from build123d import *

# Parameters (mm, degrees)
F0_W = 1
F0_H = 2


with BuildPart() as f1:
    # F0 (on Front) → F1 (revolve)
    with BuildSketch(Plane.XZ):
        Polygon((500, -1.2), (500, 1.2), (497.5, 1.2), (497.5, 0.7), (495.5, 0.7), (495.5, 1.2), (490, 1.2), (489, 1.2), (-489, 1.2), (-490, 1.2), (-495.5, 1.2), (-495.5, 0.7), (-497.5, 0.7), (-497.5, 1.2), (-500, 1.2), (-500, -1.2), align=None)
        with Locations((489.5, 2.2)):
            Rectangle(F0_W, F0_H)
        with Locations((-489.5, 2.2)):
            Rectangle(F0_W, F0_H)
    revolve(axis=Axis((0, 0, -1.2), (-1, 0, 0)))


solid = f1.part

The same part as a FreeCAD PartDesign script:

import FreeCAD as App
import Part
import Sketcher

V = App.Vector
Q = App.Units.Quantity

doc = App.newDocument("Part")
params = doc.addObject("Spreadsheet::Sheet", "Params")
for row, (alias, value) in enumerate([
    ("sketch1_width", "2 mm"),
    ("sketch1_width2", "1 mm"),
    ("sketch1_width3", "978 mm"),
    ("sketch1_width4", "1000 mm"),
    ("sketch1_width5", "2.5 mm"),
    ("revolution_angle", "360 deg"),
], start=1):
    params.set(f"A{row}", alias)
    params.set(f"B{row}", "=" + value)
    params.setAlias(f"B{row}", alias)

body = doc.addObject("PartDesign::Body", "Body")

# Sketch on XZ plane
sketch1 = doc.addObject("Sketcher::SketchObject", "Sketch")
body.addObject(sketch1)
sketch1.AttachmentSupport = (doc.XZ_Plane, [""])
sketch1.MapMode = "FlatFace"
sketch1.addGeometry(Part.LineSegment(V(500, -1.2, 0), V(500, 1.2, 0)), False)
sketch1.addGeometry(Part.LineSegment(V(500, 1.2, 0), V(497.5, 1.2, 0)), False)
sketch1.addGeometry(Part.LineSegment(V(497.5, 1.2, 0), V(497.5, 0.7, 0)), False)
sketch1.addGeometry(Part.LineSegment(V(497.5, 0.7, 0), V(495.5, 0.7, 0)), False)
sketch1.addGeometry(Part.LineSegment(V(495.5, 0.7, 0), V(495.5, 1.2, 0)), False)
sketch1.addGeometry(Part.LineSegment(V(495.5, 1.2, 0), V(490, 1.2, 0)), False)
sketch1.addGeometry(Part.LineSegment(V(490, 1.2, 0), V(490, 3.2, 0)), False)
sketch1.addGeometry(Part.LineSegment(V(490, 3.2, 0), V(489, 3.2, 0)), False)
sketch1.addGeometry(Part.LineSegment(V(489, 3.2, 0), V(489, 1.2, 0)), False)
sketch1.addGeometry(Part.LineSegment(V(489, 1.2, 0), V(-489, 1.2, 0)), False)
sketch1.addGeometry(Part.LineSegment(V(-489, 1.2, 0), V(-489, 3.2, 0)), False)
sketch1.addGeometry(Part.LineSegment(V(-489, 3.2, 0), V(-490, 3.2, 0)), False)
sketch1.addGeometry(Part.LineSegment(V(-490, 3.2, 0), V(-490, 1.2, 0)), False)
sketch1.addGeometry(Part.LineSegment(V(-490, 1.2, 0), V(-495.5, 1.2, 0)), False)
sketch1.addGeometry(Part.LineSegment(V(-495.5, 1.2, 0), V(-495.5, 0.7, 0)), False)
sketch1.addGeometry(Part.LineSegment(V(-495.5, 0.7, 0), V(-497.5, 0.7, 0)), False)
sketch1.addGeometry(Part.LineSegment(V(-497.5, 0.7, 0), V(-497.5, 1.2, 0)), False)
sketch1.addGeometry(Part.LineSegment(V(-497.5, 1.2, 0), V(-500, 1.2, 0)), False)
sketch1.addGeometry(Part.LineSegment(V(-500, 1.2, 0), V(-500, -1.2, 0)), False)
sketch1.addGeometry(Part.LineSegment(V(-500, -1.2, 0), V(500, -1.2, 0)), False)
sketch1.addGeometry(Part.LineSegment(V(500, -1.2, 0), V(-500, -1.2, 0)), True)  # axis
sketch1.addConstraint(Sketcher.Constraint("Coincident", 0, 2, 1, 1))
sketch1.addConstraint(Sketcher.Constraint("Coincident", 1, 2, 2, 1))
sketch1.addConstraint(Sketcher.Constraint("Coincident", 2, 2, 3, 1))
sketch1.addConstraint(Sketcher.Constraint("Coincident", 3, 2, 4, 1))
sketch1.addConstraint(Sketcher.Constraint("Coincident", 4, 2, 5, 1))
sketch1.addConstraint(Sketcher.Constraint("Coincident", 5, 2, 6, 1))
sketch1.addConstraint(Sketcher.Constraint("Coincident", 6, 2, 7, 1))
sketch1.addConstraint(Sketcher.Constraint("Coincident", 7, 2, 8, 1))
sketch1.addConstraint(Sketcher.Constraint("Coincident", 8, 2, 9, 1))
sketch1.addConstraint(Sketcher.Constraint("Coincident", 9, 2, 10, 1))
sketch1.addConstraint(Sketcher.Constraint("Coincident", 10, 2, 11, 1))
sketch1.addConstraint(Sketcher.Constraint("Coincident", 11, 2, 12, 1))
sketch1.addConstraint(Sketcher.Constraint("Coincident", 12, 2, 13, 1))
sketch1.addConstraint(Sketcher.Constraint("Coincident", 13, 2, 14, 1))
sketch1.addConstraint(Sketcher.Constraint("Coincident", 14, 2, 15, 1))
sketch1.addConstraint(Sketcher.Constraint("Coincident", 15, 2, 16, 1))
sketch1.addConstraint(Sketcher.Constraint("Coincident", 16, 2, 17, 1))
sketch1.addConstraint(Sketcher.Constraint("Coincident", 17, 2, 18, 1))
sketch1.addConstraint(Sketcher.Constraint("Coincident", 18, 2, 19, 1))
sketch1.addConstraint(Sketcher.Constraint("Coincident", 19, 2, 0, 1))
sketch1.addConstraint(Sketcher.Constraint("Vertical", 0))
sketch1.addConstraint(Sketcher.Constraint("Horizontal", 1))
sketch1.addConstraint(Sketcher.Constraint("Vertical", 2))
sketch1.addConstraint(Sketcher.Constraint("Horizontal", 3))
sketch1.addConstraint(Sketcher.Constraint("Vertical", 4))
sketch1.addConstraint(Sketcher.Constraint("Horizontal", 5))
sketch1.addConstraint(Sketcher.Constraint("Vertical", 6))
sketch1.addConstraint(Sketcher.Constraint("Horizontal", 7))
sketch1.addConstraint(Sketcher.Constraint("Vertical", 8))
sketch1.addConstraint(Sketcher.Constraint("Horizontal", 9))
sketch1.addConstraint(Sketcher.Constraint("Vertical", 10))
sketch1.addConstraint(Sketcher.Constraint("Horizontal", 11))
sketch1.addConstraint(Sketcher.Constraint("Vertical", 12))
sketch1.addConstraint(Sketcher.Constraint("Horizontal", 13))
sketch1.addConstraint(Sketcher.Constraint("Vertical", 14))
sketch1.addConstraint(Sketcher.Constraint("Horizontal", 15))
sketch1.addConstraint(Sketcher.Constraint("Vertical", 16))
sketch1.addConstraint(Sketcher.Constraint("Horizontal", 17))
sketch1.addConstraint(Sketcher.Constraint("Vertical", 18))
sketch1.addConstraint(Sketcher.Constraint("Horizontal", 19))
sketch1.addConstraint(Sketcher.Constraint("Horizontal", 20))
sketch1.addConstraint(Sketcher.Constraint("Coincident", 20, 1, 19, 2))
sketch1.addConstraint(Sketcher.Constraint("Symmetric", 0, 2, 18, 2, -1, 1))
sketch1.addConstraint(Sketcher.Constraint("Symmetric", 7, 2, 10, 2, -2))
sketch1.addConstraint(Sketcher.Constraint("Symmetric", 5, 2, 12, 2, -2))
sketch1.addConstraint(Sketcher.Constraint("Symmetric", 3, 2, 14, 2, -2))
sketch1.addConstraint(Sketcher.Constraint("Symmetric", 1, 2, 16, 2, -2))
sketch1.addConstraint(Sketcher.Constraint("Horizontal", 1, 2, 4, 2))
sketch1.addConstraint(Sketcher.Constraint("Horizontal", 5, 2, 8, 2))
sketch1.addConstraint(Sketcher.Constraint("Vertical", 17, 2, 20, 2))
sketch1.addConstraint(Sketcher.Constraint("Equal", 15, 6))
sketch1.addConstraint(Sketcher.Constraint("DistanceX", 3, 2, 3, 1, Q("2 mm")))
sketch1.addConstraint(Sketcher.Constraint("DistanceX", 7, 2, 7, 1, Q("1 mm")))
sketch1.addConstraint(Sketcher.Constraint("DistanceX", 9, 2, 9, 1, Q("978 mm")))
sketch1.addConstraint(Sketcher.Constraint("DistanceX", 19, 1, 19, 2, Q("1000 mm")))
sketch1.addConstraint(Sketcher.Constraint("DistanceX", 1, 2, 1, 1, Q("2.5 mm")))
sketch1.addConstraint(Sketcher.Constraint("DistanceY", 0, 1, 0, 2, Q("2.4 mm")))
sketch1.addConstraint(Sketcher.Constraint("DistanceY", 2, 2, 2, 1, Q("0.5 mm")))
sketch1.setExpression("Constraints[51]", "Params.sketch1_width")
sketch1.setExpression("Constraints[52]", "Params.sketch1_width2")
sketch1.setExpression("Constraints[53]", "Params.sketch1_width3")
sketch1.setExpression("Constraints[54]", "Params.sketch1_width4")
sketch1.setExpression("Constraints[55]", "Params.sketch1_width5")
revolution = doc.addObject("PartDesign::Revolution", "Revolution")
body.addObject(revolution)
revolution.Profile = sketch1
revolution.ReferenceAxis = (sketch1, ["Axis0"])
revolution.setExpression("Angle", "Params.revolution_angle")

doc.recompute()
